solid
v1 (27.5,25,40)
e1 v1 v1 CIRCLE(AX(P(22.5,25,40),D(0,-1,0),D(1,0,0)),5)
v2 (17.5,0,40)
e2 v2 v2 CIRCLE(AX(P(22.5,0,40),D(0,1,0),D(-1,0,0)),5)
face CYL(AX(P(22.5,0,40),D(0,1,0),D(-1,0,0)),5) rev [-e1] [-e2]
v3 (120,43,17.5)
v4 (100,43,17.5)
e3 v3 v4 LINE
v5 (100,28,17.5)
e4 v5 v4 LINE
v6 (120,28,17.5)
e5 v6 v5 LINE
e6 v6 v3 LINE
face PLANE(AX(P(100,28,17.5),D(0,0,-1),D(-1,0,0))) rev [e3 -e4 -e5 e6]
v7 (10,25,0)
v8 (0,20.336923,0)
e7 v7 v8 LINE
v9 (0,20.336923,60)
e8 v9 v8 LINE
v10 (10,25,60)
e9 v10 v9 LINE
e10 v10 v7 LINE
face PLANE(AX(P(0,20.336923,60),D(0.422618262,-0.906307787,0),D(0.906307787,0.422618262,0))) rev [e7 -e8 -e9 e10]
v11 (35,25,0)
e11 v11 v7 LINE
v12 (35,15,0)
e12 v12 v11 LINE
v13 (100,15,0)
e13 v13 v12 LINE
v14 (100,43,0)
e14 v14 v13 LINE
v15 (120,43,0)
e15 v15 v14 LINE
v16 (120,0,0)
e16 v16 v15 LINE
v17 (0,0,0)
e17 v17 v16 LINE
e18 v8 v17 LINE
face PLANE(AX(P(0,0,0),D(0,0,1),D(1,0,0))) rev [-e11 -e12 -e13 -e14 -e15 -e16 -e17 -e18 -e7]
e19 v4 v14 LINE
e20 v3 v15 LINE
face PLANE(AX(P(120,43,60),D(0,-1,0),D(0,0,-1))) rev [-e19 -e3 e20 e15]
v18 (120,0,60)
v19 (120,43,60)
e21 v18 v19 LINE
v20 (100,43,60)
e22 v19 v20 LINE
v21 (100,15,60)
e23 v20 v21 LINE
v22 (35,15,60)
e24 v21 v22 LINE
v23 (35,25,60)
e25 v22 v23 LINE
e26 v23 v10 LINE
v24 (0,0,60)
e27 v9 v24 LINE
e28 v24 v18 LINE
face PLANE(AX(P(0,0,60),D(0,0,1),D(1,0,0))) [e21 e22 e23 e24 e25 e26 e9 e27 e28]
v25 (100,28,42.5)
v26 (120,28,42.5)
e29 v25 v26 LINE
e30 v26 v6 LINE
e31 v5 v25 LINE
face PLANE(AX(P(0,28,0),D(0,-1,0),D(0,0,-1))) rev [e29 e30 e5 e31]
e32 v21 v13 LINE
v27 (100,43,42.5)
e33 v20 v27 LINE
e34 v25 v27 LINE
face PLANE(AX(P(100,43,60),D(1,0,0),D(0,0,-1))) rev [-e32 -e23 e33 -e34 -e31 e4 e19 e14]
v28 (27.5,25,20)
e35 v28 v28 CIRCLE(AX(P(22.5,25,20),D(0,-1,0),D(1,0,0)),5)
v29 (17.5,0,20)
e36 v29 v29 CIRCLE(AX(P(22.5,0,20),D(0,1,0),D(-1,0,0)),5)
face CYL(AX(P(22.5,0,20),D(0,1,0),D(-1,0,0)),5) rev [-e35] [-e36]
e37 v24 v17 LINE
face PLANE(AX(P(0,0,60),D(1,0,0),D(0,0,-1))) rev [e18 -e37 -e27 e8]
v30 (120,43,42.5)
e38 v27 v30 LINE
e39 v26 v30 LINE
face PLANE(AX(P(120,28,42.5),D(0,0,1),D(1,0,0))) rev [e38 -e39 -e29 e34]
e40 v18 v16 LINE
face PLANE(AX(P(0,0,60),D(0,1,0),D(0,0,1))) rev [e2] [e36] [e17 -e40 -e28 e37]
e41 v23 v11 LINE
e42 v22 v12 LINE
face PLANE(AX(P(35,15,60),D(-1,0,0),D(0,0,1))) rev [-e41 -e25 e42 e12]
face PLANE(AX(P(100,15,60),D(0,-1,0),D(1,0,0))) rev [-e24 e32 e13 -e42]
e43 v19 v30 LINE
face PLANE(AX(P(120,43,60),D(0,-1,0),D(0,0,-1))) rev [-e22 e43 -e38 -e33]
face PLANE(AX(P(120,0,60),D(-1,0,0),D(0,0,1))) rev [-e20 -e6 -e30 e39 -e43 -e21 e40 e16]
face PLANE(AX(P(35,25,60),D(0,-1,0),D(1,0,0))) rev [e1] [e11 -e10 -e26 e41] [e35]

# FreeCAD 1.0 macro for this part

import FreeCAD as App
import Part
import Sketcher
Q = App.Units.Quantity


def add_polygon(sketch, points):
    """Adds a closed chain of lines whose ends are joined by coincident constraints."""
    first, n = sketch.GeometryCount, len(points)
    for a, b in zip(points, points[1:] + points[:1]):
        sketch.addGeometry(Part.LineSegment(App.Vector(*a, 0), App.Vector(*b, 0)), False)
    for i in range(n):
        sketch.addConstraint(Sketcher.Constraint("Coincident", first + i, 2, first + (i + 1) % n, 1))

doc = App.newDocument("Part")
body = doc.addObject("PartDesign::Body", "Body")

# Sketch on XY plane
sketch1 = body.newObject("Sketcher::SketchObject", "Sketch")
sketch1.AttachmentSupport = (doc.getObject("XY_Plane"), [""])
sketch1.MapMode = "FlatFace"
add_polygon(sketch1, [(0, 0), (120, 0), (120, 43), (100, 43), (100, 15), (35, 15), (35, 25), (10, 25), (0, 20)])  # lines 0-8
sketch1.addConstraint([
    Sketcher.Constraint("Horizontal", 0),
    Sketcher.Constraint("Vertical", 1),
    Sketcher.Constraint("Horizontal", 2),
    Sketcher.Constraint("Vertical", 3),
    Sketcher.Constraint("Horizontal", 4),
    Sketcher.Constraint("Vertical", 5),
    Sketcher.Constraint("Horizontal", 6),
    Sketcher.Constraint("Vertical", 8),
    Sketcher.Constraint("Coincident", 8, 2, -1, 1),
    Sketcher.Constraint("DistanceX", 0, 1, 0, 2, 120.0),
    Sketcher.Constraint("DistanceX", 2, 2, 2, 1, 20.0),
    Sketcher.Constraint("DistanceX", 4, 2, 4, 1, 65.0),
    Sketcher.Constraint("DistanceX", 6, 2, 6, 1, 25.0),
    Sketcher.Constraint("DistanceY", 1, 1, 1, 2, 43.0),
    Sketcher.Constraint("DistanceY", 3, 2, 3, 1, 28.0),
    Sketcher.Constraint("DistanceY", 5, 1, 5, 2, 10.0),
    Sketcher.Constraint("Angle", 7, Q("-155 deg")),
])
pad1 = body.newObject("PartDesign::Pad", "Pad")
pad1.Profile = sketch1
pad1.Length = 60

# Sketch on XZ plane
sketch2 = body.newObject("Sketcher::SketchObject", "Sketch001")
sketch2.AttachmentSupport = (doc.getObject("XZ_Plane"), [""])
sketch2.MapMode = "FlatFace"
sketch2.AttachmentOffset = App.Placement(App.Vector(0, 0, -43), App.Rotation())
add_polygon(sketch2, [(100, 18), (100, 42), (120, 42), (120, 18)])  # lines 0-3
sketch2.addConstraint([
    Sketcher.Constraint("Vertical", 0),
    Sketcher.Constraint("Horizontal", 1),
    Sketcher.Constraint("Vertical", 2),
    Sketcher.Constraint("Horizontal", 3),
    Sketcher.Constraint("DistanceX", 1, 1, 1, 2, 20.0),
    Sketcher.Constraint("DistanceY", 0, 1, 0, 2, 25.0),
    Sketcher.Constraint("DistanceX", -1, 1, 0, 2, 100.0),
    Sketcher.Constraint("DistanceY", -1, 1, 0, 2, 42.5),
])
pocket1 = body.newObject("PartDesign::Pocket", "Pocket")
pocket1.Profile = sketch2
pocket1.Length = 15
pocket1.Reversed = True

# Sketch on XZ plane
sketch3 = body.newObject("Sketcher::SketchObject", "Sketch002")
sketch3.AttachmentSupport = (doc.getObject("XZ_Plane"), [""])
sketch3.MapMode = "FlatFace"
sketch3.AttachmentOffset = App.Placement(App.Vector(0, 0, -25), App.Rotation())
sketch3.addGeometry([
    Part.Circle(App.Vector(22, 40, 0), App.Vector(0, 0, 1), 5),
    Part.Circle(App.Vector(22, 20, 0), App.Vector(0, 0, 1), 5),
], False)
sketch3.addConstraint([
    Sketcher.Constraint("Equal", 0, 1),
    Sketcher.Constraint("Vertical", 0, 3, 1, 3),
    Sketcher.Constraint("Diameter", 0, 10.0),
    Sketcher.Constraint("DistanceY", -1, 1, 0, 3, 40.0),
    Sketcher.Constraint("DistanceY", -1, 1, 1, 3, 20.0),
    Sketcher.Constraint("DistanceX", -1, 1, 0, 3, 22.5),
])
pocket2 = body.newObject("PartDesign::Pocket", "Pocket001")
pocket2.Profile = sketch3
pocket2.Type = "ThroughAll"
pocket2.Midplane = True

doc.recompute()
